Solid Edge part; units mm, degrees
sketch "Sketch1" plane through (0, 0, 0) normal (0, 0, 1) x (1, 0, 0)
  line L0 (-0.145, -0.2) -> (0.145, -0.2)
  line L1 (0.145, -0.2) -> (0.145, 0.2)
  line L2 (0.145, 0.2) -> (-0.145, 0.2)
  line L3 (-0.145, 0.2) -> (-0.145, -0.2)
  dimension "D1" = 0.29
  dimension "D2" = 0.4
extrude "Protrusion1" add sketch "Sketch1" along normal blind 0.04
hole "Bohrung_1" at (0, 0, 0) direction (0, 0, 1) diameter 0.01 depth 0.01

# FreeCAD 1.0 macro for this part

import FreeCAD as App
import Part
import Sketcher

V = App.Vector


def add_polygon(sketch, points):
    """Adds a closed chain of lines whose ends are joined by coincident constraints."""
    first, n = sketch.GeometryCount, len(points)
    for a, b in zip(points, points[1:] + points[:1]):
        sketch.addGeometry(Part.LineSegment(App.Vector(*a, 0), App.Vector(*b, 0)), False)
    for i in range(n):
        sketch.addConstraint(Sketcher.Constraint("Coincident", first + i, 2, first + (i + 1) % n, 1))

doc = App.newDocument("Part")
body = doc.addObject("PartDesign::Body", "Body")

sketch1 = body.newObject("Sketcher::SketchObject", "Sketch")
sketch1.AttachmentSupport = (doc.getObject("XY_Plane"), [""])
sketch1.MapMode = "FlatFace"
add_polygon(sketch1, [(-0.14, 0.2), (-0.14, -0.2), (0.14, -0.2), (0.14, 0.2)])
sketch1.addConstraint([
    Sketcher.Constraint("Vertical", 0),
    Sketcher.Constraint("Horizontal", 1),
    Sketcher.Constraint("Vertical", 2),
    Sketcher.Constraint("Horizontal", 3),
    Sketcher.Constraint("Symmetric", 0, 2, 2, 2, -1, 1),
    Sketcher.Constraint("DistanceY", 0, 2, 0, 1, 0.4),
    Sketcher.Constraint("DistanceX", 0, 2, -1, 1, 0.145),
])
pad1 = body.newObject("PartDesign::Pad", "Pad")
pad1.Profile = sketch1
pad1.Length = 0.04

sketch2 = body.newObject("Sketcher::SketchObject", "Sketch001")
sketch2.AttachmentSupport = (doc.getObject("XY_Plane"), [""])
sketch2.MapMode = "FlatFace"
sketch2.addGeometry(Part.Circle(V(0, 0, 0), V(0, 0, 1), 0.005), False)
sketch2.addConstraint([
    Sketcher.Constraint("Coincident", 0, 3, -1, 1),
    Sketcher.Constraint("Diameter", 0, 0.01),
])
doc.recompute()
hole = body.newObject("PartDesign::Hole", "Hole")
hole.Profile = sketch2
hole.ThreadType = "None"
hole.Diameter = 0.01
hole.DepthType = "Dimension"
hole.Depth = 0.01
hole.DrillPoint = "Flat"
hole.Reversed = True

doc.recompute()
